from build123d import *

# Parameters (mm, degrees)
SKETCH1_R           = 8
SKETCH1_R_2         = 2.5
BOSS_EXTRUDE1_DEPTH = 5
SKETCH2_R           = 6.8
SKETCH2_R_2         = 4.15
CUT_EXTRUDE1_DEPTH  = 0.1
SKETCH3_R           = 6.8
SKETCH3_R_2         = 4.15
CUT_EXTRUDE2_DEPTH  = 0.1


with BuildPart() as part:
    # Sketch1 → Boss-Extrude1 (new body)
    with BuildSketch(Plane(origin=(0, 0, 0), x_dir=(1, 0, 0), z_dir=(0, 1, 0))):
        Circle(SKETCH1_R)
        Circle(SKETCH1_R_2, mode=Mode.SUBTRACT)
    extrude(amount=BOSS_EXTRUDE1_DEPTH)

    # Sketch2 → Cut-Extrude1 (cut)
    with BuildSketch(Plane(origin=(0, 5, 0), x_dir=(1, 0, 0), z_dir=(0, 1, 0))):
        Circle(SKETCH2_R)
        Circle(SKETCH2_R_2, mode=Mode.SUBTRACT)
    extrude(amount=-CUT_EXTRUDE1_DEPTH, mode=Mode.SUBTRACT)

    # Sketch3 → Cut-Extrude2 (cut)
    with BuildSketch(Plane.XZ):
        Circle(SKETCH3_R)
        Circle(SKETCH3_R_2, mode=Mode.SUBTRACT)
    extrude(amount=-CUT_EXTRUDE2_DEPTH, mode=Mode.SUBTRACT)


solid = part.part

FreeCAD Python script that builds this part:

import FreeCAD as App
import Part
import Sketcher
Q = App.Units.Quantity

doc = App.newDocument("Part")
body = doc.addObject("PartDesign::Body", "Body")

sketch1 = body.newObject("Sketcher::SketchObject", "Sketch")
sketch1.AttachmentSupport = (doc.getObject("XZ_Plane"), [""])
sketch1.MapMode = "FlatFace"
sketch1.addGeometry([
    Part.Circle(App.Vector(0, 0, 0), App.Vector(0, 0, 1), 8),
    Part.Circle(App.Vector(0, 0, 0), App.Vector(0, 0, 1), 2.5),
], False)
sketch1.addConstraint([
    Sketcher.Constraint("Coincident", 0, 3, -1, 1),
    Sketcher.Constraint("Coincident", 1, 3, -1, 1),
    Sketcher.Constraint("Diameter", 0, Q("16 mm")),
    Sketcher.Constraint("Diameter", 1, Q("5 mm")),
])
pad1 = body.newObject("PartDesign::Pad", "Pad")
pad1.Profile = sketch1
pad1.Length = 5
pad1.Reversed = True

sketch2 = body.newObject("Sketcher::SketchObject", "Sketch001")
sketch2.AttachmentSupport = (doc.getObject("XZ_Plane"), [""])
sketch2.MapMode = "FlatFace"
sketch2.AttachmentOffset = App.Placement(App.Vector(0, 0, -5), App.Rotation())
sketch2.addGeometry([
    Part.Circle(App.Vector(0, 0, 0), App.Vector(0, 0, 1), 6.8),
    Part.Circle(App.Vector(0, 0, 0), App.Vector(0, 0, 1), 4.15),
], False)
sketch2.addConstraint([
    Sketcher.Constraint("Coincident", 0, 3, -1, 1),
    Sketcher.Constraint("Coincident", 1, 3, -1, 1),
    Sketcher.Constraint("Diameter", 0, Q("13.6 mm")),
    Sketcher.Constraint("Diameter", 1, Q("8.3 mm")),
])
pocket1 = body.newObject("PartDesign::Pocket", "Pocket")
pocket1.Profile = sketch2
pocket1.Length = 0.1
pocket1.Reversed = True

sketch3 = body.newObject("Sketcher::SketchObject", "Sketch002")
sketch3.AttachmentSupport = (doc.getObject("XZ_Plane"), [""])
sketch3.MapMode = "FlatFace"
sketch3.addGeometry([
    Part.Circle(App.Vector(0, 0, 0), App.Vector(0, 0, 1), 6.8),
    Part.Circle(App.Vector(0, 0, 0), App.Vector(0, 0, 1), 4.15),
], False)
sketch3.addConstraint([
    Sketcher.Constraint("Coincident", 0, 3, -1, 1),
    Sketcher.Constraint("Coincident", 1, 3, -1, 1),
    Sketcher.Constraint("Diameter", 0, Q("13.6 mm")),
    Sketcher.Constraint("Diameter", 1, Q("8.3 mm")),
])
pocket2 = body.newObject("PartDesign::Pocket", "Pocket001")
pocket2.Profile = sketch3
pocket2.Length = 0.1

doc.recompute()
